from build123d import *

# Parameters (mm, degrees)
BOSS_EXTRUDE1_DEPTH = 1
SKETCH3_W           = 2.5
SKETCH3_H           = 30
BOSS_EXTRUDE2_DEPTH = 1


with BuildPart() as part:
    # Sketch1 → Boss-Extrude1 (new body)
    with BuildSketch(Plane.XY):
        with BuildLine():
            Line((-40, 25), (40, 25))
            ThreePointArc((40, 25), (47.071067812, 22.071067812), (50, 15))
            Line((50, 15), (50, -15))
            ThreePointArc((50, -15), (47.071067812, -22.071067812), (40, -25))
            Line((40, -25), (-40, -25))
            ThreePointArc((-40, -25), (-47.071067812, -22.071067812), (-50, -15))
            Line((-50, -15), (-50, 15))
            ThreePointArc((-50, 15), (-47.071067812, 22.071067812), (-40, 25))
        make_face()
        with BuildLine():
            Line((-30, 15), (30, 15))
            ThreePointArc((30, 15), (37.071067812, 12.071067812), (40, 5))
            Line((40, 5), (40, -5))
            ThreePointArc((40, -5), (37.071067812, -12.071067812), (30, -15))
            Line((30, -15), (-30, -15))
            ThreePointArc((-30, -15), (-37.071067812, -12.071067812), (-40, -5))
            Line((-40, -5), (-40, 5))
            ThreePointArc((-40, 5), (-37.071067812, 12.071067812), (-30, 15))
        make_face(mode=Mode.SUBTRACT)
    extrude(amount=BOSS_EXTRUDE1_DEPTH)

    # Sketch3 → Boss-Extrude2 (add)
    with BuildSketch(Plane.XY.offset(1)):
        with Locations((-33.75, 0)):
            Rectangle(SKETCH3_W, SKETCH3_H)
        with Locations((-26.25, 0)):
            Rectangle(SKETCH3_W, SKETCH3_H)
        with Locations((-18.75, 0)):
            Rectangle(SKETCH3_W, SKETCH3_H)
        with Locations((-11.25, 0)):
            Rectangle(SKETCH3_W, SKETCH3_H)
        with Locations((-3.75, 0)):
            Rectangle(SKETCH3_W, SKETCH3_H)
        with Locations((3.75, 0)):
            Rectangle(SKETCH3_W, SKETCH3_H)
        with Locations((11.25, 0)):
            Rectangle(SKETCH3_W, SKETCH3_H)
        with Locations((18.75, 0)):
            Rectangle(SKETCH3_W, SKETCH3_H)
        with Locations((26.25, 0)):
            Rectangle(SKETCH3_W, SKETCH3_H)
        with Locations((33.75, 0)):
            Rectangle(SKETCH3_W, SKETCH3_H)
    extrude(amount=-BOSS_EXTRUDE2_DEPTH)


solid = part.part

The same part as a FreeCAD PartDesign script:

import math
import FreeCAD as App
import Part
import Sketcher

doc = App.newDocument("Part")
params = doc.addObject("Spreadsheet::Sheet", "Params")
for row, (alias, value) in enumerate([
    ("sketch1_radius", "10 mm"),
    ("sketch1_width", "80 mm"),
    ("sketch1_height", "30 mm"),
    ("pad1_length", "1 mm"),
    ("sketch2_height", "30 mm"),
    ("sketch2_width", "2.5 mm"),
    ("pad2_length", "1 mm"),
], start=1):
    params.set(f"A{row}", alias)
    params.set(f"B{row}", "=" + value)
    params.setAlias(f"B{row}", alias)

body = doc.addObject("PartDesign::Body", "Body")

# Sketch on XY plane
sketch1 = body.newObject("Sketcher::SketchObject", "Sketch")
sketch1.AttachmentSupport = (doc.getObject("XY_Plane"), [""])
sketch1.MapMode = "FlatFace"
sketch1.addGeometry([
    Part.LineSegment(App.Vector(40, 25, 0), App.Vector(-40, 25, 0)),  # 0
    Part.ArcOfCircle(Part.Circle(App.Vector(-40, 15, 0), App.Vector(0, 0, 1), 10), math.radians(90), math.radians(180)),  # 1
    Part.LineSegment(App.Vector(-50, 15, 0), App.Vector(-50, -15, 0)),  # 2
    Part.ArcOfCircle(Part.Circle(App.Vector(-40, -15, 0), App.Vector(0, 0, 1), 10), math.radians(180), math.radians(270)),  # 3
    Part.LineSegment(App.Vector(-40, -25, 0), App.Vector(40, -25, 0)),  # 4
    Part.ArcOfCircle(Part.Circle(App.Vector(40, -15, 0), App.Vector(0, 0, 1), 10), math.radians(-90), math.radians(0)),  # 5
    Part.LineSegment(App.Vector(50, -15, 0), App.Vector(50, 15, 0)),  # 6
    Part.ArcOfCircle(Part.Circle(App.Vector(40, 15, 0), App.Vector(0, 0, 1), 10), math.radians(0), math.radians(90)),  # 7
    Part.LineSegment(App.Vector(-30, 15, 0), App.Vector(30, 15, 0)),  # 8
    Part.ArcOfCircle(Part.Circle(App.Vector(30, 5, 0), App.Vector(0, 0, 1), 10), math.radians(0), math.radians(90)),  # 9
    Part.LineSegment(App.Vector(40, 5, 0), App.Vector(40, -5, 0)),  # 10
    Part.ArcOfCircle(Part.Circle(App.Vector(30, -5, 0), App.Vector(0, 0, 1), 10), math.radians(-90), math.radians(0)),  # 11
    Part.LineSegment(App.Vector(30, -15, 0), App.Vector(-30, -15, 0)),  # 12
    Part.ArcOfCircle(Part.Circle(App.Vector(-30, -5, 0), App.Vector(0, 0, 1), 10), math.radians(180), math.radians(270)),  # 13
    Part.LineSegment(App.Vector(-40, -5, 0), App.Vector(-40, 5, 0)),  # 14
    Part.ArcOfCircle(Part.Circle(App.Vector(-30, 5, 0), App.Vector(0, 0, 1), 10), math.radians(90), math.radians(180)),  # 15
], False)
sketch1.addConstraint([
    Sketcher.Constraint("Tangent", 0, 2, 1, 1),
    Sketcher.Constraint("Tangent", 1, 2, 2, 1),
    Sketcher.Constraint("Tangent", 2, 2, 3, 1),
    Sketcher.Constraint("Tangent", 3, 2, 4, 1),
    Sketcher.Constraint("Tangent", 4, 2, 5, 1),
    Sketcher.Constraint("Tangent", 5, 2, 6, 1),
    Sketcher.Constraint("Tangent", 6, 2, 7, 1),
    Sketcher.Constraint("Tangent", 7, 2, 0, 1),
    Sketcher.Constraint("Tangent", 8, 2, 9, 2),
    Sketcher.Constraint("Tangent", 9, 1, 10, 1),
    Sketcher.Constraint("Tangent", 10, 2, 11, 2),
    Sketcher.Constraint("Tangent", 11, 1, 12, 1),
    Sketcher.Constraint("Tangent", 12, 2, 13, 2),
    Sketcher.Constraint("Tangent", 13, 1, 14, 1),
    Sketcher.Constraint("Tangent", 14, 2, 15, 2),
    Sketcher.Constraint("Tangent", 15, 1, 8, 1),
    Sketcher.Constraint("Horizontal", 0),
    Sketcher.Constraint("Vertical", 2),
    Sketcher.Constraint("Horizontal", 4),
    Sketcher.Constraint("Vertical", 6),
    Sketcher.Constraint("Horizontal", 8),
    Sketcher.Constraint("Vertical", 10),
    Sketcher.Constraint("Horizontal", 12),
    Sketcher.Constraint("Vertical", 14),
    Sketcher.Constraint("Equal", 1, 3),
    Sketcher.Constraint("Equal", 3, 5),
    Sketcher.Constraint("Equal", 5, 7),
    Sketcher.Constraint("Equal", 7, 9),
    Sketcher.Constraint("Equal", 9, 11),
    Sketcher.Constraint("Equal", 11, 13),
    Sketcher.Constraint("Equal", 13, 15),
    Sketcher.Constraint("Symmetric", 1, 3, 5, 3, -1, 1),
    Sketcher.Constraint("Symmetric", 9, 3, 13, 3, -1, 1),
    Sketcher.Constraint("Horizontal", 6, 2, 8, 2),
    Sketcher.Constraint("Vertical", 7, 2, 9, 1),
    Sketcher.Constraint("Radius", 1, 10.0),
    Sketcher.Constraint("DistanceX", 0, 2, 0, 1, 80.0),
    Sketcher.Constraint("DistanceY", 2, 2, 2, 1, 30.0),
])
sketch1.setExpression("Constraints[35]", "Params.sketch1_radius")
sketch1.setExpression("Constraints[36]", "Params.sketch1_width")
sketch1.setExpression("Constraints[37]", "Params.sketch1_height")
pad1 = body.newObject("PartDesign::Pad", "Pad")
pad1.Profile = sketch1
pad1.setExpression("Length", "Params.pad1_length")

# Sketch on XY plane
sketch2 = body.newObject("Sketcher::SketchObject", "Sketch001")
sketch2.AttachmentSupport = (doc.getObject("XY_Plane"), [""])
sketch2.MapMode = "FlatFace"
sketch2.AttachmentOffset = App.Placement(App.Vector(0, 0, 1), App.Rotation())
sketch2.addGeometry([
    Part.LineSegment(App.Vector(-35, 15, 0), App.Vector(-35, -15, 0)),  # 0
    Part.LineSegment(App.Vector(-35, -15, 0), App.Vector(-32.5, -15, 0)),  # 1
    Part.LineSegment(App.Vector(-32.5, -15, 0), App.Vector(-32.5, 15, 0)),  # 2
    Part.LineSegment(App.Vector(-32.5, 15, 0), App.Vector(-35, 15, 0)),  # 3
    Part.LineSegment(App.Vector(-27.5, 15, 0), App.Vector(-27.5, -15, 0)),  # 4
    Part.LineSegment(App.Vector(-27.5, -15, 0), App.Vector(-25, -15, 0)),  # 5
    Part.LineSegment(App.Vector(-25, -15, 0), App.Vector(-25, 15, 0)),  # 6
    Part.LineSegment(App.Vector(-25, 15, 0), App.Vector(-27.5, 15, 0)),  # 7
    Part.LineSegment(App.Vector(-20, 15, 0), App.Vector(-20, -15, 0)),  # 8
    Part.LineSegment(App.Vector(-20, -15, 0), App.Vector(-17.5, -15, 0)),  # 9
    Part.LineSegment(App.Vector(-17.5, -15, 0), App.Vector(-17.5, 15, 0)),  # 10
    Part.LineSegment(App.Vector(-17.5, 15, 0), App.Vector(-20, 15, 0)),  # 11
    Part.LineSegment(App.Vector(-12.5, 15, 0), App.Vector(-12.5, -15, 0)),  # 12
    Part.LineSegment(App.Vector(-12.5, -15, 0), App.Vector(-10, -15, 0)),  # 13
    Part.LineSegment(App.Vector(-10, -15, 0), App.Vector(-10, 15, 0)),  # 14
    Part.LineSegment(App.Vector(-10, 15, 0), App.Vector(-12.5, 15, 0)),  # 15
    Part.LineSegment(App.Vector(-5, 15, 0), App.Vector(-5, -15, 0)),  # 16
    Part.LineSegment(App.Vector(-5, -15, 0), App.Vector(-2.5, -15, 0)),  # 17
    Part.LineSegment(App.Vector(-2.5, -15, 0), App.Vector(-2.5, 15, 0)),  # 18
    Part.LineSegment(App.Vector(-2.5, 15, 0), App.Vector(-5, 15, 0)),  # 19
    Part.LineSegment(App.Vector(2.5, 15, 0), App.Vector(2.5, -15, 0)),  # 20
    Part.LineSegment(App.Vector(2.5, -15, 0), App.Vector(5, -15, 0)),  # 21
    Part.LineSegment(App.Vector(5, -15, 0), App.Vector(5, 15, 0)),  # 22
    Part.LineSegment(App.Vector(5, 15, 0), App.Vector(2.5, 15, 0)),  # 23
    Part.LineSegment(App.Vector(10, 15, 0), App.Vector(10, -15, 0)),  # 24
    Part.LineSegment(App.Vector(10, -15, 0), App.Vector(12.5, -15, 0)),  # 25
    Part.LineSegment(App.Vector(12.5, -15, 0), App.Vector(12.5, 15, 0)),  # 26
    Part.LineSegment(App.Vector(12.5, 15, 0), App.Vector(10, 15, 0)),  # 27
    Part.LineSegment(App.Vector(17.5, 15, 0), App.Vector(17.5, -15, 0)),  # 28
    Part.LineSegment(App.Vector(17.5, -15, 0), App.Vector(20, -15, 0)),  # 29
    Part.LineSegment(App.Vector(20, -15, 0), App.Vector(20, 15, 0)),  # 30
    Part.LineSegment(App.Vector(20, 15, 0), App.Vector(17.5, 15, 0)),  # 31
    Part.LineSegment(App.Vector(25, 15, 0), App.Vector(25, -15, 0)),  # 32
    Part.LineSegment(App.Vector(25, -15, 0), App.Vector(27.5, -15, 0)),  # 33
    Part.LineSegment(App.Vector(27.5, -15, 0), App.Vector(27.5, 15, 0)),  # 34
    Part.LineSegment(App.Vector(27.5, 15, 0), App.Vector(25, 15, 0)),  # 35
    Part.LineSegment(App.Vector(32.5, 15, 0), App.Vector(32.5, -15, 0)),  # 36
    Part.LineSegment(App.Vector(32.5, -15, 0), App.Vector(35, -15, 0)),  # 37
    Part.LineSegment(App.Vector(35, -15, 0), App.Vector(35, 15, 0)),  # 38
    Part.LineSegment(App.Vector(35, 15, 0), App.Vector(32.5, 15, 0)),  # 39
], False)
sketch2.addConstraint([
    Sketcher.Constraint("Coincident", 0, 2, 1, 1),
    Sketcher.Constraint("Coincident", 1, 2, 2, 1),
    Sketcher.Constraint("Coincident", 2, 2, 3, 1),
    Sketcher.Constraint("Coincident", 3, 2, 0, 1),
    Sketcher.Constraint("Coincident", 4, 2, 5, 1),
    Sketcher.Constraint("Coincident", 5, 2, 6, 1),
    Sketcher.Constraint("Coincident", 6, 2, 7, 1),
    Sketcher.Constraint("Coincident", 7, 2, 4, 1),
    Sketcher.Constraint("Coincident", 8, 2, 9, 1),
    Sketcher.Constraint("Coincident", 9, 2, 10, 1),
    Sketcher.Constraint("Coincident", 10, 2, 11, 1),
    Sketcher.Constraint("Coincident", 11, 2, 8, 1),
    Sketcher.Constraint("Coincident", 12, 2, 13, 1),
    Sketcher.Constraint("Coincident", 13, 2, 14, 1),
    Sketcher.Constraint("Coincident", 14, 2, 15, 1),
    Sketcher.Constraint("Coincident", 15, 2, 12, 1),
    Sketcher.Constraint("Coincident", 16, 2, 17, 1),
    Sketcher.Constraint("Coincident", 17, 2, 18, 1),
    Sketcher.Constraint("Coincident", 18, 2, 19, 1),
    Sketcher.Constraint("Coincident", 19, 2, 16, 1),
    Sketcher.Constraint("Coincident", 20, 2, 21, 1),
    Sketcher.Constraint("Coincident", 21, 2, 22, 1),
    Sketcher.Constraint("Coincident", 22, 2, 23, 1),
    Sketcher.Constraint("Coincident", 23, 2, 20, 1),
    Sketcher.Constraint("Coincident", 24, 2, 25, 1),
    Sketcher.Constraint("Coincident", 25, 2, 26, 1),
    Sketcher.Constraint("Coincident", 26, 2, 27, 1),
    Sketcher.Constraint("Coincident", 27, 2, 24, 1),
    Sketcher.Constraint("Coincident", 28, 2, 29, 1),
    Sketcher.Constraint("Coincident", 29, 2, 30, 1),
    Sketcher.Constraint("Coincident", 30, 2, 31, 1),
    Sketcher.Constraint("Coincident", 31, 2, 28, 1),
    Sketcher.Constraint("Coincident", 32, 2, 33, 1),
    Sketcher.Constraint("Coincident", 33, 2, 34, 1),
    Sketcher.Constraint("Coincident", 34, 2, 35, 1),
    Sketcher.Constraint("Coincident", 35, 2, 32, 1),
    Sketcher.Constraint("Coincident", 36, 2, 37, 1),
    Sketcher.Constraint("Coincident", 37, 2, 38, 1),
    Sketcher.Constraint("Coincident", 38, 2, 39, 1),
    Sketcher.Constraint("Coincident", 39, 2, 36, 1),
    Sketcher.Constraint("Vertical", 0),
    Sketcher.Constraint("Horizontal", 1),
    Sketcher.Constraint("Vertical", 2),
    Sketcher.Constraint("Horizontal", 3),
    Sketcher.Constraint("Vertical", 4),
    Sketcher.Constraint("Horizontal", 5),
    Sketcher.Constraint("Vertical", 6),
    Sketcher.Constraint("Horizontal", 7),
    Sketcher.Constraint("Vertical", 8),
    Sketcher.Constraint("Horizontal", 9),
    Sketcher.Constraint("Vertical", 10),
    Sketcher.Constraint("Horizontal", 11),
    Sketcher.Constraint("Vertical", 12),
    Sketcher.Constraint("Horizontal", 13),
    Sketcher.Constraint("Vertical", 14),
    Sketcher.Constraint("Horizontal", 15),
    Sketcher.Constraint("Vertical", 16),
    Sketcher.Constraint("Horizontal", 17),
    Sketcher.Constraint("Vertical", 18),
    Sketcher.Constraint("Horizontal", 19),
    Sketcher.Constraint("Vertical", 20),
    Sketcher.Constraint("Horizontal", 21),
    Sketcher.Constraint("Vertical", 22),
    Sketcher.Constraint("Horizontal", 23),
    Sketcher.Constraint("Vertical", 24),
    Sketcher.Constraint("Horizontal", 25),
    Sketcher.Constraint("Vertical", 26),
    Sketcher.Constraint("Horizontal", 27),
    Sketcher.Constraint("Vertical", 28),
    Sketcher.Constraint("Horizontal", 29),
    Sketcher.Constraint("Vertical", 30),
    Sketcher.Constraint("Horizontal", 31),
    Sketcher.Constraint("Vertical", 32),
    Sketcher.Constraint("Horizontal", 33),
    Sketcher.Constraint("Vertical", 34),
    Sketcher.Constraint("Horizontal", 35),
    Sketcher.Constraint("Vertical", 36),
    Sketcher.Constraint("Horizontal", 37),
    Sketcher.Constraint("Vertical", 38),
    Sketcher.Constraint("Horizontal", 39),
    Sketcher.Constraint("Symmetric", 18, 2, 20, 2, -1, 1),
    Sketcher.Constraint("Symmetric", 16, 2, 22, 2, -1, 1),
    Sketcher.Constraint("Symmetric", 14, 2, 24, 2, -1, 1),
    Sketcher.Constraint("Symmetric", 12, 2, 26, 2, -1, 1),
    Sketcher.Constraint("Symmetric", 10, 2, 28, 2, -1, 1),
    Sketcher.Constraint("Symmetric", 8, 2, 30, 2, -1, 1),
    Sketcher.Constraint("Symmetric", 6, 2, 32, 2, -1, 1),
    Sketcher.Constraint("Symmetric", 4, 2, 34, 2, -1, 1),
    Sketcher.Constraint("Symmetric", 2, 2, 36, 2, -1, 1),
    Sketcher.Constraint("Symmetric", 0, 2, 38, 2, -1, 1),
    Sketcher.Constraint("Horizontal", 1, 2, 4, 2),
    Sketcher.Constraint("Horizontal", 3, 2, 6, 2),
    Sketcher.Constraint("Horizontal", 5, 2, 8, 2),
    Sketcher.Constraint("Horizontal", 7, 2, 10, 2),
    Sketcher.Constraint("Horizontal", 9, 2, 12, 2),
    Sketcher.Constraint("Horizontal", 11, 2, 14, 2),
    Sketcher.Constraint("Horizontal", 13, 2, 16, 2),
    Sketcher.Constraint("Horizontal", 15, 2, 18, 2),
    Sketcher.Constraint("Horizontal", 17, 2, 20, 2),
    Sketcher.Constraint("Equal", 3, 5),
    Sketcher.Constraint("Equal", 7, 9),
    Sketcher.Constraint("Equal", 11, 13),
    Sketcher.Constraint("Equal", 15, 17),
    Sketcher.Constraint("DistanceY", 0, 2, 0, 1, 30.0),
    Sketcher.Constraint("DistanceX", 1, 1, 1, 2, 2.5),
    Sketcher.Constraint("DistanceX", 0, 2, -1, 1, 35.0),
    Sketcher.Constraint("DistanceX", 5, 2, -1, 1, 25.0),
    Sketcher.Constraint("DistanceX", 8, 2, -1, 1, 20.0),
    Sketcher.Constraint("DistanceX", 13, 2, -1, 1, 10.0),
    Sketcher.Constraint("DistanceX", 16, 2, -1, 1, 5.0),
])
sketch2.setExpression("Constraints[103]", "Params.sketch2_height")
sketch2.setExpression("Constraints[104]", "Params.sketch2_width")
pad2 = body.newObject("PartDesign::Pad", "Pad001")
pad2.Profile = sketch2
pad2.setExpression("Length", "Params.pad2_length")
pad2.Reversed = True

doc.recompute()
